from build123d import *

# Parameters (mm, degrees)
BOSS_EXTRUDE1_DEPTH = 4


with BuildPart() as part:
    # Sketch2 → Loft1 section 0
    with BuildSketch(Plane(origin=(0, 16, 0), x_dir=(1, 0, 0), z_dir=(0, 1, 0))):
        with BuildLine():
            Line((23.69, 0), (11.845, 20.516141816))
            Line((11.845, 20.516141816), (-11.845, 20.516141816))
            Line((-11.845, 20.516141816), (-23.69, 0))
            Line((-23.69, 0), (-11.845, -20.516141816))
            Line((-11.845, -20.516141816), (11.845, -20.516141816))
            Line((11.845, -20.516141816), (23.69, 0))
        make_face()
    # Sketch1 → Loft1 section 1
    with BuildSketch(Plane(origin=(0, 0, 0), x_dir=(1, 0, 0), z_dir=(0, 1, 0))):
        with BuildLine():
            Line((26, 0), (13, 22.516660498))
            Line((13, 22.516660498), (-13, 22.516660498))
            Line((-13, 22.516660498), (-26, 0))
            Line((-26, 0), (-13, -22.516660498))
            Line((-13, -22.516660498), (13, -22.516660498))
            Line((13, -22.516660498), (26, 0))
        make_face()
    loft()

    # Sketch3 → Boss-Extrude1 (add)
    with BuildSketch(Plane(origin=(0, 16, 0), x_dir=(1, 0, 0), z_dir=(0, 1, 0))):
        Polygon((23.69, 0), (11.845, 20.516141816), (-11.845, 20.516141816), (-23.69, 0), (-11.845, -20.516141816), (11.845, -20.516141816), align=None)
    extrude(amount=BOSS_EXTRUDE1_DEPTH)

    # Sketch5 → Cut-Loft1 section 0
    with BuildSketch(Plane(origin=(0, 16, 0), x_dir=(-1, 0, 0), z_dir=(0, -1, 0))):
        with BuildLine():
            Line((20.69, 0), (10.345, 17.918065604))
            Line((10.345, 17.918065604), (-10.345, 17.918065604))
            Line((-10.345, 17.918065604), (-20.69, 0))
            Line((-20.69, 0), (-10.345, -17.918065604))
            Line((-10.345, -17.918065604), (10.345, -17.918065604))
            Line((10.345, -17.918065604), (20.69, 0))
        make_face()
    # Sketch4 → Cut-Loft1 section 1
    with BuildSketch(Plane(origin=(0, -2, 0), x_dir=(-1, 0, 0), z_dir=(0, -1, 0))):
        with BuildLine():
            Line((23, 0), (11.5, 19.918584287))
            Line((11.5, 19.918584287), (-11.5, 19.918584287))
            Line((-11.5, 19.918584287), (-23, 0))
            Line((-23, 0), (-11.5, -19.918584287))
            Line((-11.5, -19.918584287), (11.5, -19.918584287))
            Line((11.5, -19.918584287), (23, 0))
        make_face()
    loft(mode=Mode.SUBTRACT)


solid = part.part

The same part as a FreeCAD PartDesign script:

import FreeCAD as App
import Part
import Sketcher
from FreeCAD import Vector
Q = App.Units.Quantity

doc = App.newDocument("Part")
body = doc.addObject("PartDesign::Body", "Body")

# Sketch on XZ plane
sketch1 = body.newObject("Sketcher::SketchObject", "Sketch")
sketch1.AttachmentSupport = (doc.getObject("XZ_Plane"), [""])
sketch1.MapMode = "FlatFace"
sketch1.AttachmentOffset = App.Placement(Vector(0, 0, -16), App.Rotation())
sketch1.addGeometry([
    Part.LineSegment(Vector(24, 0, 0), Vector(12, -21, 0)),  # 0
    Part.LineSegment(Vector(12, -21, 0), Vector(-12, -21, 0)),  # 1
    Part.LineSegment(Vector(-12, -21, 0), Vector(-24, 0, 0)),  # 2
    Part.LineSegment(Vector(-24, 0, 0), Vector(-12, 21, 0)),  # 3
    Part.LineSegment(Vector(-12, 21, 0), Vector(12, 21, 0)),  # 4
    Part.LineSegment(Vector(12, 21, 0), Vector(24, 0, 0)),  # 5
], False)
sketch1.addConstraint([
    Sketcher.Constraint("Coincident", 0, 2, 1, 1),
    Sketcher.Constraint("Coincident", 1, 2, 2, 1),
    Sketcher.Constraint("Coincident", 2, 2, 3, 1),
    Sketcher.Constraint("Coincident", 3, 2, 4, 1),
    Sketcher.Constraint("Coincident", 4, 2, 5, 1),
    Sketcher.Constraint("Coincident", 5, 2, 0, 1),
    Sketcher.Constraint("Horizontal", 1),
    Sketcher.Constraint("Horizontal", 4),
    Sketcher.Constraint("Symmetric", 0, 2, 3, 2, -1, 1),
    Sketcher.Constraint("Symmetric", 2, 2, 5, 2, -1, 1),
    Sketcher.Constraint("PointOnObject", 2, 2, -1),
    Sketcher.Constraint("Parallel", 2, 5),
    Sketcher.Constraint("Vertical", 1, 2, 3, 2),
    Sketcher.Constraint("Angle", 0, Q("-120 deg")),
    Sketcher.Constraint("DistanceX", 1, 2, 1, 1, Q("23.69 mm")),
    Sketcher.Constraint("Distance", 0, Q("23.69 mm")),
])

# Sketch on XZ plane
sketch2 = body.newObject("Sketcher::SketchObject", "Sketch001")
sketch2.AttachmentSupport = (doc.getObject("XZ_Plane"), [""])
sketch2.MapMode = "FlatFace"
sketch2.addGeometry([
    Part.LineSegment(Vector(26, 0, 0), Vector(13, -23, 0)),  # 0
    Part.LineSegment(Vector(13, -23, 0), Vector(-13, -23, 0)),  # 1
    Part.LineSegment(Vector(-13, -23, 0), Vector(-26, 0, 0)),  # 2
    Part.LineSegment(Vector(-26, 0, 0), Vector(-13, 23, 0)),  # 3
    Part.LineSegment(Vector(-13, 23, 0), Vector(13, 23, 0)),  # 4
    Part.LineSegment(Vector(13, 23, 0), Vector(26, 0, 0)),  # 5
], False)
sketch2.addConstraint([
    Sketcher.Constraint("Coincident", 0, 2, 1, 1),
    Sketcher.Constraint("Coincident", 1, 2, 2, 1),
    Sketcher.Constraint("Coincident", 2, 2, 3, 1),
    Sketcher.Constraint("Coincident", 3, 2, 4, 1),
    Sketcher.Constraint("Coincident", 4, 2, 5, 1),
    Sketcher.Constraint("Coincident", 5, 2, 0, 1),
    Sketcher.Constraint("Horizontal", 1),
    Sketcher.Constraint("Horizontal", 4),
    Sketcher.Constraint("Symmetric", 0, 2, 3, 2, -1, 1),
    Sketcher.Constraint("Symmetric", 2, 2, 5, 2, -1, 1),
    Sketcher.Constraint("PointOnObject", 2, 2, -1),
    Sketcher.Constraint("Parallel", 2, 5),
    Sketcher.Constraint("Vertical", 1, 2, 3, 2),
    Sketcher.Constraint("DistanceX", 1, 2, 1, 1, Q("26 mm")),
    Sketcher.Constraint("Angle", 0, Q("-120 deg")),
    Sketcher.Constraint("Distance", 0, Q("26 mm")),
])

additiveloft = body.newObject("PartDesign::AdditiveLoft", "AdditiveLoft")
additiveloft.Profile = sketch1
additiveloft.Sections = [sketch2]

# Sketch on XZ plane
sketch3 = body.newObject("Sketcher::SketchObject", "Sketch002")
sketch3.AttachmentSupport = (doc.getObject("XZ_Plane"), [""])
sketch3.MapMode = "FlatFace"
sketch3.AttachmentOffset = App.Placement(Vector(0, 0, -16), App.Rotation())
sketch3.addGeometry([
    Part.LineSegment(Vector(24, 0, 0), Vector(12, -21, 0)),  # 0
    Part.LineSegment(Vector(12, -21, 0), Vector(-12, -21, 0)),  # 1
    Part.LineSegment(Vector(-12, -21, 0), Vector(-24, 0, 0)),  # 2
    Part.LineSegment(Vector(-24, 0, 0), Vector(-12, 21, 0)),  # 3
    Part.LineSegment(Vector(-12, 21, 0), Vector(12, 21, 0)),  # 4
    Part.LineSegment(Vector(12, 21, 0), Vector(24, 0, 0)),  # 5
], False)
sketch3.addConstraint([
    Sketcher.Constraint("Coincident", 0, 2, 1, 1),
    Sketcher.Constraint("Coincident", 1, 2, 2, 1),
    Sketcher.Constraint("Coincident", 2, 2, 3, 1),
    Sketcher.Constraint("Coincident", 3, 2, 4, 1),
    Sketcher.Constraint("Coincident", 4, 2, 5, 1),
    Sketcher.Constraint("Coincident", 5, 2, 0, 1),
    Sketcher.Constraint("Horizontal", 1),
    Sketcher.Constraint("Horizontal", 4),
    Sketcher.Constraint("Symmetric", 0, 2, 3, 2, -1, 1),
    Sketcher.Constraint("Symmetric", 2, 2, 5, 2, -1, 1),
    Sketcher.Constraint("PointOnObject", 2, 2, -1),
    Sketcher.Constraint("Parallel", 2, 5),
    Sketcher.Constraint("Vertical", 1, 2, 3, 2),
    Sketcher.Constraint("Angle", 0, Q("-120 deg")),
    Sketcher.Constraint("DistanceX", 1, 2, 1, 1, Q("23.69 mm")),
    Sketcher.Constraint("Distance", 0, Q("23.69 mm")),
])
pad1 = body.newObject("PartDesign::Pad", "Pad")
pad1.Profile = sketch3
pad1.Length = 4
pad1.Reversed = True

# Sketch on XZ plane
sketch4 = body.newObject("Sketcher::SketchObject", "Sketch003")
sketch4.AttachmentSupport = (doc.getObject("XZ_Plane"), [""])
sketch4.MapMode = "FlatFace"
sketch4.AttachmentOffset = App.Placement(Vector(0, 0, -16), App.Rotation())
sketch4.addGeometry([
    Part.LineSegment(Vector(-21, 0, 0), Vector(-10, -18, 0)),  # 0
    Part.LineSegment(Vector(-10, -18, 0), Vector(10, -18, 0)),  # 1
    Part.LineSegment(Vector(10, -18, 0), Vector(21, 0, 0)),  # 2
    Part.LineSegment(Vector(21, 0, 0), Vector(10, 18, 0)),  # 3
    Part.LineSegment(Vector(10, 18, 0), Vector(-10, 18, 0)),  # 4
    Part.LineSegment(Vector(-10, 18, 0), Vector(-21, 0, 0)),  # 5
], False)
sketch4.addConstraint([
    Sketcher.Constraint("Coincident", 0, 2, 1, 1),
    Sketcher.Constraint("Coincident", 1, 2, 2, 1),
    Sketcher.Constraint("Coincident", 2, 2, 3, 1),
    Sketcher.Constraint("Coincident", 3, 2, 4, 1),
    Sketcher.Constraint("Coincident", 4, 2, 5, 1),
    Sketcher.Constraint("Coincident", 5, 2, 0, 1),
    Sketcher.Constraint("Horizontal", 1),
    Sketcher.Constraint("Horizontal", 4),
    Sketcher.Constraint("Symmetric", 0, 2, 3, 2, -1, 1),
    Sketcher.Constraint("Symmetric", 2, 2, 5, 2, -1, 1),
    Sketcher.Constraint("PointOnObject", 2, 2, -1),
    Sketcher.Constraint("Parallel", 2, 5),
    Sketcher.Constraint("Vertical", 1, 2, 3, 2),
    Sketcher.Constraint("Angle", 0, Q("-60 deg")),
    Sketcher.Constraint("DistanceX", 1, 1, 1, 2, Q("20.69 mm")),
    Sketcher.Constraint("Distance", 0, Q("20.69 mm")),
])

# Sketch on XZ plane
sketch5 = body.newObject("Sketcher::SketchObject", "Sketch004")
sketch5.AttachmentSupport = (doc.getObject("XZ_Plane"), [""])
sketch5.MapMode = "FlatFace"
sketch5.AttachmentOffset = App.Placement(Vector(0, 0, 2), App.Rotation())
sketch5.addGeometry([
    Part.LineSegment(Vector(-23, 0, 0), Vector(-12, -20, 0)),  # 0
    Part.LineSegment(Vector(-12, -20, 0), Vector(12, -20, 0)),  # 1
    Part.LineSegment(Vector(12, -20, 0), Vector(23, 0, 0)),  # 2
    Part.LineSegment(Vector(23, 0, 0), Vector(12, 20, 0)),  # 3
    Part.LineSegment(Vector(12, 20, 0), Vector(-12, 20, 0)),  # 4
    Part.LineSegment(Vector(-12, 20, 0), Vector(-23, 0, 0)),  # 5
], False)
sketch5.addConstraint([
    Sketcher.Constraint("Coincident", 0, 2, 1, 1),
    Sketcher.Constraint("Coincident", 1, 2, 2, 1),
    Sketcher.Constraint("Coincident", 2, 2, 3, 1),
    Sketcher.Constraint("Coincident", 3, 2, 4, 1),
    Sketcher.Constraint("Coincident", 4, 2, 5, 1),
    Sketcher.Constraint("Coincident", 5, 2, 0, 1),
    Sketcher.Constraint("Horizontal", 1),
    Sketcher.Constraint("Horizontal", 4),
    Sketcher.Constraint("Symmetric", 0, 2, 3, 2, -1, 1),
    Sketcher.Constraint("Symmetric", 2, 2, 5, 2, -1, 1),
    Sketcher.Constraint("PointOnObject", 2, 2, -1),
    Sketcher.Constraint("Parallel", 2, 5),
    Sketcher.Constraint("Vertical", 1, 2, 3, 2),
    Sketcher.Constraint("DistanceX", 1, 1, 1, 2, Q("23 mm")),
    Sketcher.Constraint("Angle", 0, Q("-60 deg")),
    Sketcher.Constraint("Distance", 0, Q("23 mm")),
])

subtractiveloft = body.newObject("PartDesign::SubtractiveLoft", "SubtractiveLoft")
subtractiveloft.Profile = sketch4
subtractiveloft.Sections = [sketch5]

doc.recompute()
